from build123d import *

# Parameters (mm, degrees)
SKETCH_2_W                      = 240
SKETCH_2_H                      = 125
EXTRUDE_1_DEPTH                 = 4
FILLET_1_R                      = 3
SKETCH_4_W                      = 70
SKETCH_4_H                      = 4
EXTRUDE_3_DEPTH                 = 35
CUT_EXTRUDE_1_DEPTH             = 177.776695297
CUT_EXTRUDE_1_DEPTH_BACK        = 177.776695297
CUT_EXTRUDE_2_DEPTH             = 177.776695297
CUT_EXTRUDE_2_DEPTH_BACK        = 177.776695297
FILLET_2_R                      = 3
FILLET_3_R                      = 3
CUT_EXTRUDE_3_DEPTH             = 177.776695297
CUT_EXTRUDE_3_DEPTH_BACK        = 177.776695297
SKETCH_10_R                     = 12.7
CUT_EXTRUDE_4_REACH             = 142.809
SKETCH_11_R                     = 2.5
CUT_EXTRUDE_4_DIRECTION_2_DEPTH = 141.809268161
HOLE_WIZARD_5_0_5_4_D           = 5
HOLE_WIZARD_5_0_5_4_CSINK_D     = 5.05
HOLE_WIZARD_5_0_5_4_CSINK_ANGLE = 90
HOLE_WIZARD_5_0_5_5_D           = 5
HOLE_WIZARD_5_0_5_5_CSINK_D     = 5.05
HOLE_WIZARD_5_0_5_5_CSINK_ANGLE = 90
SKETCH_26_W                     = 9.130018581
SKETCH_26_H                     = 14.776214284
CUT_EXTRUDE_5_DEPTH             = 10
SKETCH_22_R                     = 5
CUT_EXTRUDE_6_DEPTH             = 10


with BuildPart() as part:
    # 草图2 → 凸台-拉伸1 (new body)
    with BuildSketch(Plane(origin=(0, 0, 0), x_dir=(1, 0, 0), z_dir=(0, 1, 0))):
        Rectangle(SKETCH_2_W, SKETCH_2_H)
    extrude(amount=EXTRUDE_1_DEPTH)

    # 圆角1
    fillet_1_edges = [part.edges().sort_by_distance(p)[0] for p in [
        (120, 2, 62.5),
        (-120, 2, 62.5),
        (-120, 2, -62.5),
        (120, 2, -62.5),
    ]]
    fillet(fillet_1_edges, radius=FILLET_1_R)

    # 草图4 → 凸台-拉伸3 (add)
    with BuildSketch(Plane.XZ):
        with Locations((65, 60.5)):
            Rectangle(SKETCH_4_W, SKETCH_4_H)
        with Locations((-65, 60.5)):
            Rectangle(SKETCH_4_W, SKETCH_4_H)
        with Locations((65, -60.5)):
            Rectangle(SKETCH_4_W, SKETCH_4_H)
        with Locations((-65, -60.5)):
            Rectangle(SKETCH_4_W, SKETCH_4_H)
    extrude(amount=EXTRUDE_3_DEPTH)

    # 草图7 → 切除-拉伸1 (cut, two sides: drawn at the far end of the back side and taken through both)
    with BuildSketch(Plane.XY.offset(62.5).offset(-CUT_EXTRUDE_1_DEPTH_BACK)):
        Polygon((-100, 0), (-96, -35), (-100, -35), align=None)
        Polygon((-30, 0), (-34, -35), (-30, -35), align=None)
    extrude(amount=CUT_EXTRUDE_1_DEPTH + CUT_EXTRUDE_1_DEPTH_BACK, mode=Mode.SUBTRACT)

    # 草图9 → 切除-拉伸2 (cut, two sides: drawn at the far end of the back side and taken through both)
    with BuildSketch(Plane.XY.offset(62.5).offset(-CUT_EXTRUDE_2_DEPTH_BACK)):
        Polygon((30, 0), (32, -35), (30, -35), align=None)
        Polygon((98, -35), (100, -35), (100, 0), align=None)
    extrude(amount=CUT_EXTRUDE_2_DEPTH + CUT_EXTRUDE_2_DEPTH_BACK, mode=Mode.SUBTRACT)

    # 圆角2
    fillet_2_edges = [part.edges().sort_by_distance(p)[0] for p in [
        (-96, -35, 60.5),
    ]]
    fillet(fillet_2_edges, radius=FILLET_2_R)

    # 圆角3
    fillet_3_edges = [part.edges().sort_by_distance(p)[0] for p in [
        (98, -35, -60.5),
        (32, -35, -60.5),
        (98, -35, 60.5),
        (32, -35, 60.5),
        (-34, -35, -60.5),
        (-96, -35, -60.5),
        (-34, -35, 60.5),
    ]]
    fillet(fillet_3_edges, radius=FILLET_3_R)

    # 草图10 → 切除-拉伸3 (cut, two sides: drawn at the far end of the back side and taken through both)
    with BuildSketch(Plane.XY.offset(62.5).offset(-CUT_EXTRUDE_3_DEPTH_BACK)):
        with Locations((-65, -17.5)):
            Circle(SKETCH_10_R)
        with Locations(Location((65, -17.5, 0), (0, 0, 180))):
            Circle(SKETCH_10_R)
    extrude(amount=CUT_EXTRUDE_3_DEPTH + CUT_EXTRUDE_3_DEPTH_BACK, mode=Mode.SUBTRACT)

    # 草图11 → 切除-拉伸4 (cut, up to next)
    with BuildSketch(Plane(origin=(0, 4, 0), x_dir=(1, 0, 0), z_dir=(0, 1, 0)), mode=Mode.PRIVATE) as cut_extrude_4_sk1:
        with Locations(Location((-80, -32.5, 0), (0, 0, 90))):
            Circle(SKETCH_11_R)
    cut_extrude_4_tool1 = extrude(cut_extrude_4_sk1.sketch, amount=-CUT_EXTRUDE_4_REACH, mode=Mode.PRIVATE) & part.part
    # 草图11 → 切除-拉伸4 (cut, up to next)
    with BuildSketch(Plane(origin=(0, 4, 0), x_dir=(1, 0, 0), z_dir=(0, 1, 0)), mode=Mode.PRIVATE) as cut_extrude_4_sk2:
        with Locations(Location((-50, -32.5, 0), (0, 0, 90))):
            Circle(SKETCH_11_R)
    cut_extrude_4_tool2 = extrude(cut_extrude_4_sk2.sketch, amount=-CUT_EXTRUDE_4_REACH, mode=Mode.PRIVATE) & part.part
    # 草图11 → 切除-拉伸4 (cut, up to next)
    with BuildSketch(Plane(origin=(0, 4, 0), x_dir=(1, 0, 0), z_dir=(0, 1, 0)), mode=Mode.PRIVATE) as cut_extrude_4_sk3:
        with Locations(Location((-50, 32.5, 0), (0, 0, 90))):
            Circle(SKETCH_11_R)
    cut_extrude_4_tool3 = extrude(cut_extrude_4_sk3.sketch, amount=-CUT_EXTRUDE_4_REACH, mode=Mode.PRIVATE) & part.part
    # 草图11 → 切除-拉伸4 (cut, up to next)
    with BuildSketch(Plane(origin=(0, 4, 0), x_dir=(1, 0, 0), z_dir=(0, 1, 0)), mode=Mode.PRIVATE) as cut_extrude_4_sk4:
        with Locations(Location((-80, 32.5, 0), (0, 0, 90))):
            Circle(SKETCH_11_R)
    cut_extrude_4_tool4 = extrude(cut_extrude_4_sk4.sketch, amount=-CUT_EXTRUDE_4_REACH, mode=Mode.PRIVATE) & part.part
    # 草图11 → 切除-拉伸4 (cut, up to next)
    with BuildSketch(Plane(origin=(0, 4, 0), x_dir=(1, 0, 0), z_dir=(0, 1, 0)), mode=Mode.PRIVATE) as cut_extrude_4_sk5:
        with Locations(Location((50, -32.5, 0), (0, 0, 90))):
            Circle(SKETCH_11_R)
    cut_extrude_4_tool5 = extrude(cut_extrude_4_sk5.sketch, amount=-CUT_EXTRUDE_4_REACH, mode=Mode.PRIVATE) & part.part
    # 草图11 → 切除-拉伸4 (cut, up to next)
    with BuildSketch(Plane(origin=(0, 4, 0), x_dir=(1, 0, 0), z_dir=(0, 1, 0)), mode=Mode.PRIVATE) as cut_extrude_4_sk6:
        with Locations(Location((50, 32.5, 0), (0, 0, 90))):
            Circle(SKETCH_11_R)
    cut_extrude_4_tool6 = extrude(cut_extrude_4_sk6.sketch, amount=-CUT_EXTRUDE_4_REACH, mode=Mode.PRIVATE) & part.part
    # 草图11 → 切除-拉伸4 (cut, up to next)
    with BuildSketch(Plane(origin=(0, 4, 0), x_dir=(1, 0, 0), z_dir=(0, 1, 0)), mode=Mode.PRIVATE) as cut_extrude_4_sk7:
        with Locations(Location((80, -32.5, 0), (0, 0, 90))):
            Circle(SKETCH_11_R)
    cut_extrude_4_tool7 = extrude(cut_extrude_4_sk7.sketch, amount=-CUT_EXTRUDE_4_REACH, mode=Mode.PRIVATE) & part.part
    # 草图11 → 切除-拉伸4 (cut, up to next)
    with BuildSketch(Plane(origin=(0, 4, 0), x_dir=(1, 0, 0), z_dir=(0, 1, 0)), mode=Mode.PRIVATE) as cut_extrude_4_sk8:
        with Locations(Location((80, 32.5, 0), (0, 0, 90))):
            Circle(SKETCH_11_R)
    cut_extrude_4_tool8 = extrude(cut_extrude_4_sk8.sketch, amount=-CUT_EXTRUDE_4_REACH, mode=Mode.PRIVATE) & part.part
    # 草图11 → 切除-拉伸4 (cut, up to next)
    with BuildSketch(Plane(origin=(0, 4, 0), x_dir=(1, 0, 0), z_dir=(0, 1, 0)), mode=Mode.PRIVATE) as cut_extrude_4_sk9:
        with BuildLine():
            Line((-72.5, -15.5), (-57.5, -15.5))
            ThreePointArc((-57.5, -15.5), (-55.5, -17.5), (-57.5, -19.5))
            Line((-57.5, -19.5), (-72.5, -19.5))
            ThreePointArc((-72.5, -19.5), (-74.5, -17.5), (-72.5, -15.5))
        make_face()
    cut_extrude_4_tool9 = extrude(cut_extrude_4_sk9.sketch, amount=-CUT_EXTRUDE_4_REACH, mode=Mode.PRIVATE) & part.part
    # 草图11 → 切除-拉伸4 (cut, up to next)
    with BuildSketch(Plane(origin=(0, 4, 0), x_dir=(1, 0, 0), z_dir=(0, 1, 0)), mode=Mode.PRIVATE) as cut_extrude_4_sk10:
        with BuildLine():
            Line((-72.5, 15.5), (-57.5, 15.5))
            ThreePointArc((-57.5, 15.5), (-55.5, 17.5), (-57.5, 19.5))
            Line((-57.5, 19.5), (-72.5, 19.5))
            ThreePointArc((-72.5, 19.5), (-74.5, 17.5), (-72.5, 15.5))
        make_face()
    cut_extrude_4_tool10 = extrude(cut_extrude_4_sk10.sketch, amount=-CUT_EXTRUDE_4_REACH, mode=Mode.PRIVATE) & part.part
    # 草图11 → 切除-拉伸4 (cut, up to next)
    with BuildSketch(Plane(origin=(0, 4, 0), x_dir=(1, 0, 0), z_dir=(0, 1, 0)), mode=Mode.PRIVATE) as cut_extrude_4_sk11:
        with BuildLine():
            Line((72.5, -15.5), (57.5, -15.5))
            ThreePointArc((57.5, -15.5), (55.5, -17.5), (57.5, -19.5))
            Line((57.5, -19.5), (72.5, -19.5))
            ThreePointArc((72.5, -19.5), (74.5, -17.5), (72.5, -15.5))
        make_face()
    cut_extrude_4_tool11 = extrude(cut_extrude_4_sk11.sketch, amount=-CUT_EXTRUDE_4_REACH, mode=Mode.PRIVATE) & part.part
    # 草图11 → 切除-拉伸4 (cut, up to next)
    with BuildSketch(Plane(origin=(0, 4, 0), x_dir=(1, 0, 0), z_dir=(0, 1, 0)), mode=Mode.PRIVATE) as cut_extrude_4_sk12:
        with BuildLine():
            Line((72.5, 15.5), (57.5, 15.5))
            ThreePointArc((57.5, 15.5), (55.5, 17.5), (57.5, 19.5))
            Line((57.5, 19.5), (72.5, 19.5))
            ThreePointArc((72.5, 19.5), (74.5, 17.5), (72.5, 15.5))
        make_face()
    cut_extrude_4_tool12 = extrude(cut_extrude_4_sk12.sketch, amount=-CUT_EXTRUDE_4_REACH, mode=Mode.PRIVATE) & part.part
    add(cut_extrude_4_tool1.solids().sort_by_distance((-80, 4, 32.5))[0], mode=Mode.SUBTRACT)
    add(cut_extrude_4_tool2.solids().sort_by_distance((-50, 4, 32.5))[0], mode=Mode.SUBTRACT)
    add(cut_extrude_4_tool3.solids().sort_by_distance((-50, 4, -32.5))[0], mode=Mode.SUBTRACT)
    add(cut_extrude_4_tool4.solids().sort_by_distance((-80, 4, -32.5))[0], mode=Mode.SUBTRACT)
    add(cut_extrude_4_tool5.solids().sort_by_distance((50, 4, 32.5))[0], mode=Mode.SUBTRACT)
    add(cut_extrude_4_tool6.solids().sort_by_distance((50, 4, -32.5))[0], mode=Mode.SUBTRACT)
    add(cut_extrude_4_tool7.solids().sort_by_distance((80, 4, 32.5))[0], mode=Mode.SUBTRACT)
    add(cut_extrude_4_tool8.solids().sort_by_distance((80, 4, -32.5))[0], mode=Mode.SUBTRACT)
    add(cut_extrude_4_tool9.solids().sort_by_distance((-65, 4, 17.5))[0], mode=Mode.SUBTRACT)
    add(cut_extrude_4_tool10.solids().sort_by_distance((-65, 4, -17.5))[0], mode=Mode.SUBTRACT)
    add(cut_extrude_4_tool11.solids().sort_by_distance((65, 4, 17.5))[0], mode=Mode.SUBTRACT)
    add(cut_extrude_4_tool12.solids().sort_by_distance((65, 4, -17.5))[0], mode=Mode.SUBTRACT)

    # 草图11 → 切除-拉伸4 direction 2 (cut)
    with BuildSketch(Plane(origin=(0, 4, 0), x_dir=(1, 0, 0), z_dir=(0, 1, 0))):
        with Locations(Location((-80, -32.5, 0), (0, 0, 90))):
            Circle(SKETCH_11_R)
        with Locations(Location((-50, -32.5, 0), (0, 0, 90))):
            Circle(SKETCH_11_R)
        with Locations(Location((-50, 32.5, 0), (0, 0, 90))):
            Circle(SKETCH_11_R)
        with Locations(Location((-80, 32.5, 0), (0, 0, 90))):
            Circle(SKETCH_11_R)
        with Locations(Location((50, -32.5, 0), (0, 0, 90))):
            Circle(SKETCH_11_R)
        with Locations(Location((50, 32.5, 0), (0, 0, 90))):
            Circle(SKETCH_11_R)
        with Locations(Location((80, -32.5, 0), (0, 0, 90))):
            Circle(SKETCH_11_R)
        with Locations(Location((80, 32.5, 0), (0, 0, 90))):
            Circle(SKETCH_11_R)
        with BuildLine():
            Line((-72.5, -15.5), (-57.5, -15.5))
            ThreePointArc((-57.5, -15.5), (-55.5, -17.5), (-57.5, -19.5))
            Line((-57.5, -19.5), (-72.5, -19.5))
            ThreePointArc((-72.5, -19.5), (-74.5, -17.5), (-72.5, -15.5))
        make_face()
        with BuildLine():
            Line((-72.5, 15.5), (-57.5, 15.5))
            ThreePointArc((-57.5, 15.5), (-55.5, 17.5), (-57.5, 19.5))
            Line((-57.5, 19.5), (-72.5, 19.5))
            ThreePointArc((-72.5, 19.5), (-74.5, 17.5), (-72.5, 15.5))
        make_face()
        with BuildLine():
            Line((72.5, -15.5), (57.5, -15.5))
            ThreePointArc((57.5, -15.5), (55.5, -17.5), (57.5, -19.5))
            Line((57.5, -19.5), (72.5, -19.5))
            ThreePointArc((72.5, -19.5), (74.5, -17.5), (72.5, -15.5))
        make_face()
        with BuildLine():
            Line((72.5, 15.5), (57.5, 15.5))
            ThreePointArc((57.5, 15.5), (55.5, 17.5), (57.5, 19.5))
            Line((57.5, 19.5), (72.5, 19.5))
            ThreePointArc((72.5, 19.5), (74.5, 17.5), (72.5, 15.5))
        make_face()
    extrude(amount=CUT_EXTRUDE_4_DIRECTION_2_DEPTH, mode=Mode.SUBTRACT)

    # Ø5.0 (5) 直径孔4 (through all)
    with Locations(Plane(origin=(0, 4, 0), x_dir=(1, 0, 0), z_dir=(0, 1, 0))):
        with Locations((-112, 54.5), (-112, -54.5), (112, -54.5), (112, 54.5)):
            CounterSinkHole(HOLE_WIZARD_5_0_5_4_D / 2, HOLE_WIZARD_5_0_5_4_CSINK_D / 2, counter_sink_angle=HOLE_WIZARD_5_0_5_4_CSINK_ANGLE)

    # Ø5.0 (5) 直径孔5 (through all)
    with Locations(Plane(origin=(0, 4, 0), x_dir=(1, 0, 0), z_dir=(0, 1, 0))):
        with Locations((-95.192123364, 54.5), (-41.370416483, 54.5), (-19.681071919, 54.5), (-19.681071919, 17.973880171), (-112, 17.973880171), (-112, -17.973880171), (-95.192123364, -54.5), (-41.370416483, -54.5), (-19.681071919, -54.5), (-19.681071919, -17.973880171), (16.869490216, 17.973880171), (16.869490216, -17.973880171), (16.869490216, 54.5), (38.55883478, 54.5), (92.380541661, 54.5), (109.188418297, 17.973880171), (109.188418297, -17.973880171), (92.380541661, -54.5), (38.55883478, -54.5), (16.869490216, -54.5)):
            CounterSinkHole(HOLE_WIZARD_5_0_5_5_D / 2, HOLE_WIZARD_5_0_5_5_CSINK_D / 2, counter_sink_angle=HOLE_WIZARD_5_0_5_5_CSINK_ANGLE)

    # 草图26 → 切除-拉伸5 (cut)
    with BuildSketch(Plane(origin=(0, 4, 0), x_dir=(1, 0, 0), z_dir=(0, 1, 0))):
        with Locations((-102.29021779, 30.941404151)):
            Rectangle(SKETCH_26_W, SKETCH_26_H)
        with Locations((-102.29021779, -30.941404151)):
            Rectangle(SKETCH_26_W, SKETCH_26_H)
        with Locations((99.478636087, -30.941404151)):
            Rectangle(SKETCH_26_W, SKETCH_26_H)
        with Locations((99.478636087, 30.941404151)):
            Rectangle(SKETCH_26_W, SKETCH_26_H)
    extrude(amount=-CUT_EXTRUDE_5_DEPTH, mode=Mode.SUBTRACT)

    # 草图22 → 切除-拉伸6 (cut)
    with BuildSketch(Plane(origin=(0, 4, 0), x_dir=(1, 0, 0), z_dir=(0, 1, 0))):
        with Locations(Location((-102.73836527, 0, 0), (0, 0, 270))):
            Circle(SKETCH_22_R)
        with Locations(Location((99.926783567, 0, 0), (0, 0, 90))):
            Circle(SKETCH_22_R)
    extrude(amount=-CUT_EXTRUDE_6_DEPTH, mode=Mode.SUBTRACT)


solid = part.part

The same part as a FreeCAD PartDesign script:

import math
import FreeCAD as App
import Part
import Sketcher

V = App.Vector


def edges_at(feature, points):
    """Names of the edges that pass closest to the given points."""
    edges = feature.Shape.Edges
    near = lambda p: min(range(len(edges)), key=lambda i: edges[i].distToShape(Part.Vertex(*p))[0])
    return sorted({f"Edge{near(p) + 1}" for p in points})

doc = App.newDocument("Part")
body = doc.addObject("PartDesign::Body", "Body")

sketch1 = body.newObject("Sketcher::SketchObject", "Sketch")
sketch1.AttachmentSupport = (doc.getObject("XZ_Plane"), [""])
sketch1.MapMode = "FlatFace"
sketch1.addGeometry([
    Part.LineSegment(V(-120, -62, 0), V(-120, 62, 0)),
    Part.LineSegment(V(-120, 62, 0), V(120, 62, 0)),
    Part.LineSegment(V(120, 62, 0), V(120, -62, 0)),
    Part.LineSegment(V(120, -62, 0), V(-120, -62, 0)),
], False)
sketch1.addConstraint([
    Sketcher.Constraint("Coincident", 0, 2, 1, 1),
    Sketcher.Constraint("Coincident", 1, 2, 2, 1),
    Sketcher.Constraint("Coincident", 2, 2, 3, 1),
    Sketcher.Constraint("Coincident", 3, 2, 0, 1),
    Sketcher.Constraint("Vertical", 0),
    Sketcher.Constraint("Horizontal", 1),
    Sketcher.Constraint("Vertical", 2),
    Sketcher.Constraint("Horizontal", 3),
    Sketcher.Constraint("Symmetric", 0, 2, 2, 2, -1, 1),
    Sketcher.Constraint("DistanceX", 1, 1, 1, 2, 240.0),
    Sketcher.Constraint("DistanceY", 0, 1, 0, 2, 125.0),
])
pad1 = body.newObject("PartDesign::Pad", "Pad")
pad1.Profile = sketch1
pad1.Length = 4
pad1.Reversed = True
doc.recompute()

fillet = body.newObject("PartDesign::Fillet", "Fillet")
fillet.Base = (pad1, edges_at(pad1, [
    (120, 2, 62.5),
    (-120, 2, 62.5),
    (-120, 2, -62.5),
    (120, 2, -62.5),
]))
fillet.Radius = 3

sketch2 = body.newObject("Sketcher::SketchObject", "Sketch001")
sketch2.AttachmentSupport = (doc.getObject("XZ_Plane"), [""])
sketch2.MapMode = "FlatFace"
sketch2.addGeometry([
    Part.LineSegment(V(30, 62.5, 0), V(30, 58.5, 0)),
    Part.LineSegment(V(30, 58.5, 0), V(100, 58.5, 0)),
    Part.LineSegment(V(100, 58.5, 0), V(100, 62.5, 0)),
    Part.LineSegment(V(100, 62.5, 0), V(30, 62.5, 0)),
    Part.LineSegment(V(-100, 62.5, 0), V(-100, 58.5, 0)),
    Part.LineSegment(V(-100, 58.5, 0), V(-30, 58.5, 0)),
    Part.LineSegment(V(-30, 58.5, 0), V(-30, 62.5, 0)),
    Part.LineSegment(V(-30, 62.5, 0), V(-100, 62.5, 0)),
    Part.LineSegment(V(30, -58.5, 0), V(30, -62.5, 0)),
    Part.LineSegment(V(30, -62.5, 0), V(100, -62.5, 0)),
    Part.LineSegment(V(100, -62.5, 0), V(100, -58.5, 0)),
    Part.LineSegment(V(100, -58.5, 0), V(30, -58.5, 0)),
    Part.LineSegment(V(-100, -58.5, 0), V(-100, -62.5, 0)),
    Part.LineSegment(V(-100, -62.5, 0), V(-30, -62.5, 0)),
    Part.LineSegment(V(-30, -62.5, 0), V(-30, -58.5, 0)),
    Part.LineSegment(V(-30, -58.5, 0), V(-100, -58.5, 0)),
], False)
sketch2.addConstraint([
    Sketcher.Constraint("Coincident", 0, 2, 1, 1),
    Sketcher.Constraint("Coincident", 1, 2, 2, 1),
    Sketcher.Constraint("Coincident", 2, 2, 3, 1),
    Sketcher.Constraint("Coincident", 3, 2, 0, 1),
    Sketcher.Constraint("Coincident", 4, 2, 5, 1),
    Sketcher.Constraint("Coincident", 5, 2, 6, 1),
    Sketcher.Constraint("Coincident", 6, 2, 7, 1),
    Sketcher.Constraint("Coincident", 7, 2, 4, 1),
    Sketcher.Constraint("Coincident", 8, 2, 9, 1),
    Sketcher.Constraint("Coincident", 9, 2, 10, 1),
    Sketcher.Constraint("Coincident", 10, 2, 11, 1),
    Sketcher.Constraint("Coincident", 11, 2, 8, 1),
    Sketcher.Constraint("Coincident", 12, 2, 13, 1),
    Sketcher.Constraint("Coincident", 13, 2, 14, 1),
    Sketcher.Constraint("Coincident", 14, 2, 15, 1),
    Sketcher.Constraint("Coincident", 15, 2, 12, 1),
    Sketcher.Constraint("Vertical", 0),
    Sketcher.Constraint("Horizontal", 1),
    Sketcher.Constraint("Vertical", 2),
    Sketcher.Constraint("Horizontal", 3),
    Sketcher.Constraint("Vertical", 4),
    Sketcher.Constraint("Horizontal", 5),
    Sketcher.Constraint("Vertical", 6),
    Sketcher.Constraint("Horizontal", 7),
    Sketcher.Constraint("Vertical", 8),
    Sketcher.Constraint("Horizontal", 9),
    Sketcher.Constraint("Vertical", 10),
    Sketcher.Constraint("Horizontal", 11),
    Sketcher.Constraint("Vertical", 12),
    Sketcher.Constraint("Horizontal", 13),
    Sketcher.Constraint("Vertical", 14),
    Sketcher.Constraint("Horizontal", 15),
    Sketcher.Constraint("Symmetric", 6, 2, 8, 2, -1, 1),
    Sketcher.Constraint("Symmetric", 4, 2, 10, 2, -1, 1),
    Sketcher.Constraint("Symmetric", 2, 2, 12, 2, -1, 1),
    Sketcher.Constraint("Symmetric", 0, 2, 14, 2, -1, 1),
    Sketcher.Constraint("Symmetric", 1, 2, 4, 2, -2),
    Sketcher.Constraint("Symmetric", 3, 2, 6, 2, -2),
    Sketcher.Constraint("DistanceX", 1, 1, 1, 2, 70.0),
    Sketcher.Constraint("DistanceY", 0, 2, 0, 1, 4.0),
    Sketcher.Constraint("DistanceX", -1, 1, 0, 2, 30.0),
    Sketcher.Constraint("DistanceY", 8, 2, 0, 2, 121.0),
])
pad2 = body.newObject("PartDesign::Pad", "Pad001")
pad2.Profile = sketch2
pad2.Length = 35

sketch3 = body.newObject("Sketcher::SketchObject", "Sketch002")
sketch3.AttachmentSupport = (doc.getObject("XY_Plane"), [""])
sketch3.MapMode = "FlatFace"
sketch3.AttachmentOffset = App.Placement(V(0, 0, 62.5), App.Rotation())
sketch3.addGeometry([
    Part.LineSegment(V(-96, -35, 0), V(-100, 0, 0)),
    Part.LineSegment(V(-100, 0, 0), V(-100, -35, 0)),
    Part.LineSegment(V(-100, -35, 0), V(-96, -35, 0)),
    Part.LineSegment(V(-30, 0, 0), V(-34, -35, 0)),
    Part.LineSegment(V(-34, -35, 0), V(-30, -35, 0)),
    Part.LineSegment(V(-30, -35, 0), V(-30, 0, 0)),
], False)
sketch3.addConstraint([
    Sketcher.Constraint("Coincident", 0, 2, 1, 1),
    Sketcher.Constraint("Coincident", 1, 2, 2, 1),
    Sketcher.Constraint("Coincident", 2, 2, 0, 1),
    Sketcher.Constraint("Coincident", 3, 2, 4, 1),
    Sketcher.Constraint("Coincident", 4, 2, 5, 1),
    Sketcher.Constraint("Coincident", 5, 2, 3, 1),
    Sketcher.Constraint("Vertical", 1),
    Sketcher.Constraint("Horizontal", 2),
    Sketcher.Constraint("Horizontal", 4),
    Sketcher.Constraint("Vertical", 5),
    Sketcher.Constraint("PointOnObject", 0, 2, -1),
    Sketcher.Constraint("PointOnObject", 5, 2, -1),
    Sketcher.Constraint("Horizontal", 2, 2, 3, 2),
    Sketcher.Constraint("Equal", 2, 4),
    Sketcher.Constraint("DistanceX", 2, 1, 2, 2, 4.0),
    Sketcher.Constraint("DistanceY", 1, 2, 1, 1, 35.0),
    Sketcher.Constraint("DistanceX", 0, 2, -1, 1, 100.0),
    Sketcher.Constraint("DistanceX", 3, 2, -1, 1, 34.0),
])
pocket1 = body.newObject("PartDesign::Pocket", "Pocket")
pocket1.Profile = sketch3
pocket1.Type = "ThroughAll"
pocket1.Midplane = True

sketch4 = body.newObject("Sketcher::SketchObject", "Sketch003")
sketch4.AttachmentSupport = (doc.getObject("XY_Plane"), [""])
sketch4.MapMode = "FlatFace"
sketch4.AttachmentOffset = App.Placement(V(0, 0, 62.5), App.Rotation())
sketch4.addGeometry([
    Part.LineSegment(V(32, -35, 0), V(30, 0, 0)),
    Part.LineSegment(V(30, 0, 0), V(30, -35, 0)),
    Part.LineSegment(V(30, -35, 0), V(32, -35, 0)),
    Part.LineSegment(V(98, -35, 0), V(100, -35, 0)),
    Part.LineSegment(V(100, -35, 0), V(100, 0, 0)),
    Part.LineSegment(V(100, 0, 0), V(98, -35, 0)),
], False)
sketch4.addConstraint([
    Sketcher.Constraint("Coincident", 0, 2, 1, 1),
    Sketcher.Constraint("Coincident", 1, 2, 2, 1),
    Sketcher.Constraint("Coincident", 2, 2, 0, 1),
    Sketcher.Constraint("Coincident", 3, 2, 4, 1),
    Sketcher.Constraint("Coincident", 4, 2, 5, 1),
    Sketcher.Constraint("Coincident", 5, 2, 3, 1),
    Sketcher.Constraint("Vertical", 1),
    Sketcher.Constraint("Horizontal", 2),
    Sketcher.Constraint("Horizontal", 3),
    Sketcher.Constraint("Vertical", 4),
    Sketcher.Constraint("PointOnObject", 0, 2, -1),
    Sketcher.Constraint("PointOnObject", 4, 2, -1),
    Sketcher.Constraint("Horizontal", 2, 2, 3, 2),
    Sketcher.Constraint("Equal", 2, 3),
    Sketcher.Constraint("DistanceX", 2, 1, 2, 2, 2.0),
    Sketcher.Constraint("DistanceY", 1, 2, 1, 1, 35.0),
    Sketcher.Constraint("DistanceX", -1, 1, 0, 2, 30.0),
    Sketcher.Constraint("DistanceX", -1, 1, 3, 2, 100.0),
])
pocket2 = body.newObject("PartDesign::Pocket", "Pocket001")
pocket2.Profile = sketch4
pocket2.Type = "ThroughAll"
pocket2.Midplane = True
doc.recompute()

fillet2 = body.newObject("PartDesign::Fillet", "Fillet001")
fillet2.Base = (pocket2, edges_at(pocket2, [(-96, -35, 60.5)]))
fillet2.Radius = 3
doc.recompute()

fillet3 = body.newObject("PartDesign::Fillet", "Fillet002")
fillet3.Base = (fillet2, edges_at(fillet2, [
    (98, -35, -60.5),
    (32, -35, -60.5),
    (98, -35, 60.5),
    (32, -35, 60.5),
    (-34, -35, -60.5),
    (-96, -35, -60.5),
    (-34, -35, 60.5),
]))
fillet3.Radius = 3

sketch5 = body.newObject("Sketcher::SketchObject", "Sketch004")
sketch5.AttachmentSupport = (doc.getObject("XY_Plane"), [""])
sketch5.MapMode = "FlatFace"
sketch5.AttachmentOffset = App.Placement(V(0, 0, 62.5), App.Rotation())
sketch5.addGeometry([
    Part.Circle(V(-65, -18, 0), V(0, 0, 1), 13),
    Part.Circle(V(65, -18, 0), V(0, 0, 1), 13),
], False)
sketch5.addConstraint([
    Sketcher.Constraint("Equal", 0, 1),
    Sketcher.Constraint("Symmetric", 0, 3, 1, 3, -2),
    Sketcher.Constraint("Diameter", 0, 25.4),
    Sketcher.Constraint("DistanceX", 0, 3, -1, 1, 65.0),
    Sketcher.Constraint("DistanceY", 0, 3, -1, 1, 17.5),
])
pocket3 = body.newObject("PartDesign::Pocket", "Pocket002")
pocket3.Profile = sketch5
pocket3.Type = "ThroughAll"
pocket3.Midplane = True

sketch6 = body.newObject("Sketcher::SketchObject", "Sketch005")
sketch6.AttachmentSupport = (doc.getObject("XZ_Plane"), [""])
sketch6.MapMode = "FlatFace"
sketch6.AttachmentOffset = App.Placement(V(0, 0, -4), App.Rotation())
sketch6.addGeometry(Part.Circle(V(-80, 32.5, 0), V(0, 0, 1), 2.5), False)
sketch6.addConstraint([
    Sketcher.Constraint("Diameter", 0, 5.0),
    Sketcher.Constraint("DistanceX", 0, 3, -1, 1, 80.0),
    Sketcher.Constraint("DistanceY", -1, 1, 0, 3, 32.5),
])
pocket4 = body.newObject("PartDesign::Pocket", "Pocket003")
pocket4.Profile = sketch6
pocket4.Type = "UpToFirst"
pocket4.Reversed = True

sketch7 = body.newObject("Sketcher::SketchObject", "Sketch006")
sketch7.AttachmentSupport = (doc.getObject("XZ_Plane"), [""])
sketch7.MapMode = "FlatFace"
sketch7.AttachmentOffset = App.Placement(V(0, 0, -4), App.Rotation())
sketch7.addGeometry(Part.Circle(V(-50, 32.5, 0), V(0, 0, 1), 2.5), False)
sketch7.addConstraint([
    Sketcher.Constraint("Diameter", 0, 5.0),
    Sketcher.Constraint("DistanceX", 0, 3, -1, 1, 50.0),
    Sketcher.Constraint("DistanceY", -1, 1, 0, 3, 32.5),
])
pocket5 = body.newObject("PartDesign::Pocket", "Pocket004")
pocket5.Profile = sketch7
pocket5.Type = "UpToFirst"
pocket5.Reversed = True

sketch8 = body.newObject("Sketcher::SketchObject", "Sketch007")
sketch8.AttachmentSupport = (doc.getObject("XZ_Plane"), [""])
sketch8.MapMode = "FlatFace"
sketch8.AttachmentOffset = App.Placement(V(0, 0, -4), App.Rotation())
sketch8.addGeometry(Part.Circle(V(-50, -32.5, 0), V(0, 0, 1), 2.5), False)
sketch8.addConstraint([
    Sketcher.Constraint("Diameter", 0, 5.0),
    Sketcher.Constraint("DistanceX", 0, 3, -1, 1, 50.0),
    Sketcher.Constraint("DistanceY", 0, 3, -1, 1, 32.5),
])
pocket6 = body.newObject("PartDesign::Pocket", "Pocket005")
pocket6.Profile = sketch8
pocket6.Type = "UpToFirst"
pocket6.Reversed = True

sketch9 = body.newObject("Sketcher::SketchObject", "Sketch008")
sketch9.AttachmentSupport = (doc.getObject("XZ_Plane"), [""])
sketch9.MapMode = "FlatFace"
sketch9.AttachmentOffset = App.Placement(V(0, 0, -4), App.Rotation())
sketch9.addGeometry(Part.Circle(V(-80, -32.5, 0), V(0, 0, 1), 2.5), False)
sketch9.addConstraint([
    Sketcher.Constraint("Diameter", 0, 5.0),
    Sketcher.Constraint("DistanceX", 0, 3, -1, 1, 80.0),
    Sketcher.Constraint("DistanceY", 0, 3, -1, 1, 32.5),
])
pocket7 = body.newObject("PartDesign::Pocket", "Pocket006")
pocket7.Profile = sketch9
pocket7.Type = "UpToFirst"
pocket7.Reversed = True

sketch10 = body.newObject("Sketcher::SketchObject", "Sketch009")
sketch10.AttachmentSupport = (doc.getObject("XZ_Plane"), [""])
sketch10.MapMode = "FlatFace"
sketch10.AttachmentOffset = App.Placement(V(0, 0, -4), App.Rotation())
sketch10.addGeometry(Part.Circle(V(50, 32.5, 0), V(0, 0, 1), 2.5), False)
sketch10.addConstraint([
    Sketcher.Constraint("Diameter", 0, 5.0),
    Sketcher.Constraint("DistanceX", -1, 1, 0, 3, 50.0),
    Sketcher.Constraint("DistanceY", -1, 1, 0, 3, 32.5),
])
pocket8 = body.newObject("PartDesign::Pocket", "Pocket007")
pocket8.Profile = sketch10
pocket8.Type = "UpToFirst"
pocket8.Reversed = True

sketch11 = body.newObject("Sketcher::SketchObject", "Sketch010")
sketch11.AttachmentSupport = (doc.getObject("XZ_Plane"), [""])
sketch11.MapMode = "FlatFace"
sketch11.AttachmentOffset = App.Placement(V(0, 0, -4), App.Rotation())
sketch11.addGeometry(Part.Circle(V(50, -32.5, 0), V(0, 0, 1), 2.5), False)
sketch11.addConstraint([
    Sketcher.Constraint("Diameter", 0, 5.0),
    Sketcher.Constraint("DistanceX", -1, 1, 0, 3, 50.0),
    Sketcher.Constraint("DistanceY", 0, 3, -1, 1, 32.5),
])
pocket9 = body.newObject("PartDesign::Pocket", "Pocket008")
pocket9.Profile = sketch11
pocket9.Type = "UpToFirst"
pocket9.Reversed = True

sketch12 = body.newObject("Sketcher::SketchObject", "Sketch011")
sketch12.AttachmentSupport = (doc.getObject("XZ_Plane"), [""])
sketch12.MapMode = "FlatFace"
sketch12.AttachmentOffset = App.Placement(V(0, 0, -4), App.Rotation())
sketch12.addGeometry(Part.Circle(V(80, 32.5, 0), V(0, 0, 1), 2.5), False)
sketch12.addConstraint([
    Sketcher.Constraint("Diameter", 0, 5.0),
    Sketcher.Constraint("DistanceX", -1, 1, 0, 3, 80.0),
    Sketcher.Constraint("DistanceY", -1, 1, 0, 3, 32.5),
])
pocket10 = body.newObject("PartDesign::Pocket", "Pocket009")
pocket10.Profile = sketch12
pocket10.Type = "UpToFirst"
pocket10.Reversed = True

sketch13 = body.newObject("Sketcher::SketchObject", "Sketch012")
sketch13.AttachmentSupport = (doc.getObject("XZ_Plane"), [""])
sketch13.MapMode = "FlatFace"
sketch13.AttachmentOffset = App.Placement(V(0, 0, -4), App.Rotation())
sketch13.addGeometry(Part.Circle(V(80, -32.5, 0), V(0, 0, 1), 2.5), False)
sketch13.addConstraint([
    Sketcher.Constraint("Diameter", 0, 5.0),
    Sketcher.Constraint("DistanceX", -1, 1, 0, 3, 80.0),
    Sketcher.Constraint("DistanceY", 0, 3, -1, 1, 32.5),
])
pocket11 = body.newObject("PartDesign::Pocket", "Pocket010")
pocket11.Profile = sketch13
pocket11.Type = "UpToFirst"
pocket11.Reversed = True

sketch14 = body.newObject("Sketcher::SketchObject", "Sketch013")
sketch14.AttachmentSupport = (doc.getObject("XZ_Plane"), [""])
sketch14.MapMode = "FlatFace"
sketch14.AttachmentOffset = App.Placement(V(0, 0, -4), App.Rotation())
sketch14.addGeometry([
    Part.LineSegment(V(-57.5, 15.5, 0), V(-72.5, 15.5, 0)),
    Part.ArcOfCircle(Part.Circle(V(-72.5, 17.5, 0), V(0, 0, 1), 2), math.radians(90), math.radians(270)),
    Part.LineSegment(V(-72.5, 19.5, 0), V(-57.5, 19.5, 0)),
    Part.ArcOfCircle(Part.Circle(V(-57.5, 17.5, 0), V(0, 0, 1), 2), math.radians(-90), math.radians(90)),
], False)
sketch14.addConstraint([
    Sketcher.Constraint("Tangent", 0, 2, 1, 2),
    Sketcher.Constraint("Tangent", 1, 1, 2, 1),
    Sketcher.Constraint("Tangent", 2, 2, 3, 2),
    Sketcher.Constraint("Tangent", 3, 1, 0, 1),
    Sketcher.Constraint("Horizontal", 0),
    Sketcher.Constraint("Horizontal", 2),
    Sketcher.Constraint("Radius", 1, 2.0),
    Sketcher.Constraint("DistanceX", 0, 2, 0, 1, 15.0),
    Sketcher.Constraint("DistanceX", 1, 3, -1, 1, 72.5),
    Sketcher.Constraint("DistanceY", -1, 1, 1, 3, 17.5),
])
pocket12 = body.newObject("PartDesign::Pocket", "Pocket011")
pocket12.Profile = sketch14
pocket12.Type = "UpToFirst"
pocket12.Reversed = True

sketch15 = body.newObject("Sketcher::SketchObject", "Sketch014")
sketch15.AttachmentSupport = (doc.getObject("XZ_Plane"), [""])
sketch15.MapMode = "FlatFace"
sketch15.AttachmentOffset = App.Placement(V(0, 0, -4), App.Rotation())
sketch15.addGeometry([
    Part.LineSegment(V(-72.5, -15.5, 0), V(-57.5, -15.5, 0)),
    Part.ArcOfCircle(Part.Circle(V(-57.5, -17.5, 0), V(0, 0, 1), 2), math.radians(-90), math.radians(90)),
    Part.LineSegment(V(-57.5, -19.5, 0), V(-72.5, -19.5, 0)),
    Part.ArcOfCircle(Part.Circle(V(-72.5, -17.5, 0), V(0, 0, 1), 2), math.radians(90), math.radians(270)),
], False)
sketch15.addConstraint([
    Sketcher.Constraint("Tangent", 0, 2, 1, 2),
    Sketcher.Constraint("Tangent", 1, 1, 2, 1),
    Sketcher.Constraint("Tangent", 2, 2, 3, 2),
    Sketcher.Constraint("Tangent", 3, 1, 0, 1),
    Sketcher.Constraint("Horizontal", 0),
    Sketcher.Constraint("Horizontal", 2),
    Sketcher.Constraint("Radius", 1, 2.0),
    Sketcher.Constraint("DistanceX", 0, 1, 0, 2, 15.0),
    Sketcher.Constraint("DistanceX", 1, 3, -1, 1, 57.5),
    Sketcher.Constraint("DistanceY", 1, 3, -1, 1, 17.5),
])
pocket13 = body.newObject("PartDesign::Pocket", "Pocket012")
pocket13.Profile = sketch15
pocket13.Type = "UpToFirst"
pocket13.Reversed = True

sketch16 = body.newObject("Sketcher::SketchObject", "Sketch015")
sketch16.AttachmentSupport = (doc.getObject("XZ_Plane"), [""])
sketch16.MapMode = "FlatFace"
sketch16.AttachmentOffset = App.Placement(V(0, 0, -4), App.Rotation())
sketch16.addGeometry([
    Part.LineSegment(V(72.5, 15.5, 0), V(57.5, 15.5, 0)),
    Part.ArcOfCircle(Part.Circle(V(57.5, 17.5, 0), V(0, 0, 1), 2), math.radians(90), math.radians(270)),
    Part.LineSegment(V(57.5, 19.5, 0), V(72.5, 19.5, 0)),
    Part.ArcOfCircle(Part.Circle(V(72.5, 17.5, 0), V(0, 0, 1), 2), math.radians(-90), math.radians(90)),
], False)
sketch16.addConstraint([
    Sketcher.Constraint("Tangent", 0, 2, 1, 2),
    Sketcher.Constraint("Tangent", 1, 1, 2, 1),
    Sketcher.Constraint("Tangent", 2, 2, 3, 2),
    Sketcher.Constraint("Tangent", 3, 1, 0, 1),
    Sketcher.Constraint("Horizontal", 0),
    Sketcher.Constraint("Horizontal", 2),
    Sketcher.Constraint("Radius", 1, 2.0),
    Sketcher.Constraint("DistanceX", 0, 2, 0, 1, 15.0),
    Sketcher.Constraint("DistanceX", -1, 1, 1, 3, 57.5),
    Sketcher.Constraint("DistanceY", -1, 1, 1, 3, 17.5),
])
pocket14 = body.newObject("PartDesign::Pocket", "Pocket013")
pocket14.Profile = sketch16
pocket14.Type = "UpToFirst"
pocket14.Reversed = True

sketch17 = body.newObject("Sketcher::SketchObject", "Sketch016")
sketch17.AttachmentSupport = (doc.getObject("XZ_Plane"), [""])
sketch17.MapMode = "FlatFace"
sketch17.AttachmentOffset = App.Placement(V(0, 0, -4), App.Rotation())
sketch17.addGeometry([
    Part.LineSegment(V(57.5, -15.5, 0), V(72.5, -15.5, 0)),
    Part.ArcOfCircle(Part.Circle(V(72.5, -17.5, 0), V(0, 0, 1), 2), math.radians(-90), math.radians(90)),
    Part.LineSegment(V(72.5, -19.5, 0), V(57.5, -19.5, 0)),
    Part.ArcOfCircle(Part.Circle(V(57.5, -17.5, 0), V(0, 0, 1), 2), math.radians(90), math.radians(270)),
], False)
sketch17.addConstraint([
    Sketcher.Constraint("Tangent", 0, 2, 1, 2),
    Sketcher.Constraint("Tangent", 1, 1, 2, 1),
    Sketcher.Constraint("Tangent", 2, 2, 3, 2),
    Sketcher.Constraint("Tangent", 3, 1, 0, 1),
    Sketcher.Constraint("Horizontal", 0),
    Sketcher.Constraint("Horizontal", 2),
    Sketcher.Constraint("Radius", 1, 2.0),
    Sketcher.Constraint("DistanceX", 0, 1, 0, 2, 15.0),
    Sketcher.Constraint("DistanceX", -1, 1, 1, 3, 72.5),
    Sketcher.Constraint("DistanceY", 1, 3, -1, 1, 17.5),
])
pocket15 = body.newObject("PartDesign::Pocket", "Pocket014")
pocket15.Profile = sketch17
pocket15.Type = "UpToFirst"
pocket15.Reversed = True

sketch18 = body.newObject("Sketcher::SketchObject", "Sketch017")
sketch18.AttachmentSupport = (doc.getObject("XZ_Plane"), [""])
sketch18.MapMode = "FlatFace"
sketch18.AttachmentOffset = App.Placement(V(0, 0, -4), App.Rotation())
sketch18.addGeometry([
    Part.Circle(V(-80, 32.5, 0), V(0, 0, 1), 2.5),
    Part.Circle(V(-50, 32.5, 0), V(0, 0, 1), 2.5),
    Part.Circle(V(-50, -32.5, 0), V(0, 0, 1), 2.5),
    Part.Circle(V(-80, -32.5, 0), V(0, 0, 1), 2.5),
    Part.Circle(V(50, 32.5, 0), V(0, 0, 1), 2.5),
    Part.Circle(V(50, -32.5, 0), V(0, 0, 1), 2.5),
    Part.Circle(V(80, 32.5, 0), V(0, 0, 1), 2.5),
    Part.Circle(V(80, -32.5, 0), V(0, 0, 1), 2.5),
    Part.LineSegment(V(-57.5, 15.5, 0), V(-72.5, 15.5, 0)),
    Part.ArcOfCircle(Part.Circle(V(-72.5, 17.5, 0), V(0, 0, 1), 2), math.radians(90), math.radians(270)),
    Part.LineSegment(V(-72.5, 19.5, 0), V(-57.5, 19.5, 0)),
    Part.ArcOfCircle(Part.Circle(V(-57.5, 17.5, 0), V(0, 0, 1), 2), math.radians(-90), math.radians(90)),
    Part.LineSegment(V(-72.5, -15.5, 0), V(-57.5, -15.5, 0)),
    Part.ArcOfCircle(Part.Circle(V(-57.5, -17.5, 0), V(0, 0, 1), 2), math.radians(-90), math.radians(90)),
    Part.LineSegment(V(-57.5, -19.5, 0), V(-72.5, -19.5, 0)),
    Part.ArcOfCircle(Part.Circle(V(-72.5, -17.5, 0), V(0, 0, 1), 2), math.radians(90), math.radians(270)),
    Part.LineSegment(V(72.5, 15.5, 0), V(57.5, 15.5, 0)),
    Part.ArcOfCircle(Part.Circle(V(57.5, 17.5, 0), V(0, 0, 1), 2), math.radians(90), math.radians(270)),
    Part.LineSegment(V(57.5, 19.5, 0), V(72.5, 19.5, 0)),
    Part.ArcOfCircle(Part.Circle(V(72.5, 17.5, 0), V(0, 0, 1), 2), math.radians(-90), math.radians(90)),
    Part.LineSegment(V(57.5, -15.5, 0), V(72.5, -15.5, 0)),
    Part.ArcOfCircle(Part.Circle(V(72.5, -17.5, 0), V(0, 0, 1), 2), math.radians(-90), math.radians(90)),
    Part.LineSegment(V(72.5, -19.5, 0), V(57.5, -19.5, 0)),
    Part.ArcOfCircle(Part.Circle(V(57.5, -17.5, 0), V(0, 0, 1), 2), math.radians(90), math.radians(270)),
], False)
sketch18.addConstraint([
    Sketcher.Constraint("Tangent", 8, 2, 9, 2),
    Sketcher.Constraint("Tangent", 9, 1, 10, 1),
    Sketcher.Constraint("Tangent", 10, 2, 11, 2),
    Sketcher.Constraint("Tangent", 11, 1, 8, 1),
    Sketcher.Constraint("Tangent", 12, 2, 13, 2),
    Sketcher.Constraint("Tangent", 13, 1, 14, 1),
    Sketcher.Constraint("Tangent", 14, 2, 15, 2),
    Sketcher.Constraint("Tangent", 15, 1, 12, 1),
    Sketcher.Constraint("Tangent", 16, 2, 17, 2),
    Sketcher.Constraint("Tangent", 17, 1, 18, 1),
    Sketcher.Constraint("Tangent", 18, 2, 19, 2),
    Sketcher.Constraint("Tangent", 19, 1, 16, 1),
    Sketcher.Constraint("Tangent", 20, 2, 21, 2),
    Sketcher.Constraint("Tangent", 21, 1, 22, 1),
    Sketcher.Constraint("Tangent", 22, 2, 23, 2),
    Sketcher.Constraint("Tangent", 23, 1, 20, 1),
    Sketcher.Constraint("Horizontal", 8),
    Sketcher.Constraint("Horizontal", 10),
    Sketcher.Constraint("Horizontal", 12),
    Sketcher.Constraint("Horizontal", 14),
    Sketcher.Constraint("Horizontal", 16),
    Sketcher.Constraint("Horizontal", 18),
    Sketcher.Constraint("Horizontal", 20),
    Sketcher.Constraint("Horizontal", 22),
    Sketcher.Constraint("Equal", 0, 1),
    Sketcher.Constraint("Equal", 1, 2),
    Sketcher.Constraint("Equal", 2, 3),
    Sketcher.Constraint("Equal", 3, 4),
    Sketcher.Constraint("Equal", 4, 5),
    Sketcher.Constraint("Equal", 5, 6),
    Sketcher.Constraint("Equal", 6, 7),
    Sketcher.Constraint("Equal", 11, 13),
    Sketcher.Constraint("Equal", 15, 17),
    Sketcher.Constraint("Equal", 19, 21),
    Sketcher.Constraint("Symmetric", 2, 3, 4, 3, -1, 1),
    Sketcher.Constraint("Symmetric", 1, 3, 5, 3, -1, 1),
    Sketcher.Constraint("Symmetric", 3, 3, 6, 3, -1, 1),
    Sketcher.Constraint("Symmetric", 0, 3, 7, 3, -1, 1),
    Sketcher.Constraint("Symmetric", 13, 3, 17, 3, -1, 1),
    Sketcher.Constraint("Symmetric", 9, 3, 21, 3, -1, 1),
    Sketcher.Constraint("Symmetric", 1, 3, 4, 3, -2),
    Sketcher.Constraint("Symmetric", 0, 3, 6, 3, -2),
    Sketcher.Constraint("Symmetric", 11, 3, 17, 3, -2),
    Sketcher.Constraint("Horizontal", 0, 3, 1, 3),
    Sketcher.Constraint("Vertical", 9, 3, 15, 3),
    Sketcher.Constraint("Vertical", 19, 3, 21, 3),
    Sketcher.Constraint("Vertical", 17, 3, 23, 3),
    Sketcher.Constraint("Diameter", 0, 5.0),
    Sketcher.Constraint("Radius", 9, 2.0),
    Sketcher.Constraint("DistanceX", 8, 2, 8, 1, 15.0),
    Sketcher.Constraint("DistanceX", 0, 3, -1, 1, 80.0),
    Sketcher.Constraint("DistanceX", 1, 3, -1, 1, 50.0),
    Sketcher.Constraint("DistanceY", 2, 3, 1, 3, 65.0),
    Sketcher.Constraint("DistanceY", 9, 3, 0, 3, 15.0),
    Sketcher.Constraint("DistanceX", 9, 3, -1, 1, 72.5),
])
pocket16 = body.newObject("PartDesign::Pocket", "Pocket015")
pocket16.Profile = sketch18
pocket16.Length = 141.809268

sketch19 = body.newObject("Sketcher::SketchObject", "Sketch018")
sketch19.AttachmentSupport = (doc.getObject("XZ_Plane"), [""])
sketch19.MapMode = "FlatFace"
sketch19.AttachmentOffset = App.Placement(V(0, 0, -4), App.Rotation())
sketch19.addGeometry([
    Part.Circle(V(-112, -54.5, 0), V(0, 0, 1), 2.5),
    Part.Circle(V(-112, 54.5, 0), V(0, 0, 1), 2.5),
    Part.Circle(V(112, 54.5, 0), V(0, 0, 1), 2.5),
    Part.Circle(V(112, -54.5, 0), V(0, 0, 1), 2.5),
], False)
sketch19.addConstraint([
    Sketcher.Constraint("Equal", 0, 1),
    Sketcher.Constraint("Equal", 1, 2),
    Sketcher.Constraint("Equal", 2, 3),
    Sketcher.Constraint("Symmetric", 0, 3, 2, 3, -1, 1),
    Sketcher.Constraint("Symmetric", 1, 3, 3, 3, -1, 1),
    Sketcher.Constraint("Symmetric", 1, 3, 2, 3, -2),
    Sketcher.Constraint("Diameter", 0, 5.0),
    Sketcher.Constraint("DistanceX", 0, 3, -1, 1, 112.0),
    Sketcher.Constraint("DistanceY", 0, 3, 1, 3, 109.0),
])
doc.recompute()
hole = body.newObject("PartDesign::Hole", "Hole")
hole.Profile = sketch19
hole.ThreadType = "None"
hole.Diameter = 5
hole.DepthType = "ThroughAll"
hole.HoleCutType = "Countersink"
hole.HoleCutDiameter = 5.05
hole.HoleCutCountersinkAngle = 90
hole.Reversed = True

sketch20 = body.newObject("Sketcher::SketchObject", "Sketch019")
sketch20.AttachmentSupport = (doc.getObject("XZ_Plane"), [""])
sketch20.MapMode = "FlatFace"
sketch20.AttachmentOffset = App.Placement(V(0, 0, -4), App.Rotation())
sketch20.addGeometry([
    Part.Circle(V(-95.2, -54.5, 0), V(0, 0, 1), 2.5),
    Part.Circle(V(-41.4, -54.5, 0), V(0, 0, 1), 2.5),
    Part.Circle(V(-19.7, -54.5, 0), V(0, 0, 1), 2.5),
    Part.Circle(V(-19.7, -18, 0), V(0, 0, 1), 2.5),
    Part.Circle(V(-112, -18, 0), V(0, 0, 1), 2.5),
    Part.Circle(V(-112, 18, 0), V(0, 0, 1), 2.5),
    Part.Circle(V(-95.2, 54.5, 0), V(0, 0, 1), 2.5),
    Part.Circle(V(-41.4, 54.5, 0), V(0, 0, 1), 2.5),
    Part.Circle(V(-19.7, 54.5, 0), V(0, 0, 1), 2.5),
    Part.Circle(V(-19.7, 18, 0), V(0, 0, 1), 2.5),
    Part.Circle(V(16.9, -18, 0), V(0, 0, 1), 2.5),
    Part.Circle(V(16.9, 18, 0), V(0, 0, 1), 2.5),
    Part.Circle(V(16.9, -54.5, 0), V(0, 0, 1), 2.5),
    Part.Circle(V(38.6, -54.5, 0), V(0, 0, 1), 2.5),
    Part.Circle(V(92.4, -54.5, 0), V(0, 0, 1), 2.5),
    Part.Circle(V(109.2, -18, 0), V(0, 0, 1), 2.5),
    Part.Circle(V(109.2, 18, 0), V(0, 0, 1), 2.5),
    Part.Circle(V(92.4, 54.5, 0), V(0, 0, 1), 2.5),
    Part.Circle(V(38.6, 54.5, 0), V(0, 0, 1), 2.5),
    Part.Circle(V(16.9, 54.5, 0), V(0, 0, 1), 2.5),
], False)
sketch20.addConstraint([
    Sketcher.Constraint("Equal", 0, 1),
    Sketcher.Constraint("Equal", 1, 2),
    Sketcher.Constraint("Equal", 2, 3),
    Sketcher.Constraint("Equal", 3, 4),
    Sketcher.Constraint("Equal", 4, 5),
    Sketcher.Constraint("Equal", 5, 6),
    Sketcher.Constraint("Equal", 6, 7),
    Sketcher.Constraint("Equal", 7, 8),
    Sketcher.Constraint("Equal", 8, 9),
    Sketcher.Constraint("Equal", 9, 10),
    Sketcher.Constraint("Equal", 10, 11),
    Sketcher.Constraint("Equal", 11, 12),
    Sketcher.Constraint("Equal", 12, 13),
    Sketcher.Constraint("Equal", 13, 14),
    Sketcher.Constraint("Equal", 14, 15),
    Sketcher.Constraint("Equal", 15, 16),
    Sketcher.Constraint("Equal", 16, 17),
    Sketcher.Constraint("Equal", 17, 18),
    Sketcher.Constraint("Equal", 18, 19),
    Sketcher.Constraint("Symmetric", 4, 3, 5, 3, -1),
    Sketcher.Constraint("Symmetric", 0, 3, 6, 3, -1),
    Sketcher.Constraint("Symmetric", 1, 3, 7, 3, -1),
    Sketcher.Constraint("Symmetric", 2, 3, 8, 3, -1),
    Sketcher.Constraint("Symmetric", 3, 3, 9, 3, -1),
    Sketcher.Constraint("Symmetric", 10, 3, 11, 3, -1),
    Sketcher.Constraint("Symmetric", 15, 3, 16, 3, -1),
    Sketcher.Constraint("Symmetric", 14, 3, 17, 3, -1),
    Sketcher.Constraint("Symmetric", 13, 3, 18, 3, -1),
    Sketcher.Constraint("Symmetric", 12, 3, 19, 3, -1),
    Sketcher.Constraint("Horizontal", 0, 3, 1, 3),
    Sketcher.Constraint("Horizontal", 1, 3, 2, 3),
    Sketcher.Constraint("Horizontal", 3, 3, 4, 3),
    Sketcher.Constraint("Horizontal", 4, 3, 10, 3),
    Sketcher.Constraint("Horizontal", 2, 3, 12, 3),
    Sketcher.Constraint("Horizontal", 12, 3, 13, 3),
    Sketcher.Constraint("Horizontal", 13, 3, 14, 3),
    Sketcher.Constraint("Horizontal", 10, 3, 15, 3),
    Sketcher.Constraint("Vertical", 2, 3, 3, 3),
    Sketcher.Constraint("Vertical", 11, 3, 12, 3),
    Sketcher.Constraint("Diameter", 0, 5.0),
    Sketcher.Constraint("DistanceX", 4, 3, -1, 1, 112.0),
    Sketcher.Constraint("DistanceY", 0, 3, 6, 3, 109.0),
    Sketcher.Constraint("DistanceX", 2, 3, -1, 1, 19.681072),
    Sketcher.Constraint("DistanceY", 3, 3, -1, 1, 17.97388),
    Sketcher.Constraint("DistanceX", -1, 1, 10, 3, 16.86949),
    Sketcher.Constraint("DistanceX", -1, 1, 14, 3, 92.380542),
    Sketcher.Constraint("DistanceX", -1, 1, 15, 3, 109.188418),
    Sketcher.Constraint("DistanceX", 0, 3, 2, 3, 75.511051),
    Sketcher.Constraint("DistanceX", 1, 3, -1, 1, 41.370416),
    Sketcher.Constraint("DistanceX", -1, 1, 13, 3, 38.558835),
])
doc.recompute()
hole2 = body.newObject("PartDesign::Hole", "Hole001")
hole2.Profile = sketch20
hole2.ThreadType = "None"
hole2.Diameter = 5
hole2.DepthType = "ThroughAll"
hole2.HoleCutType = "Countersink"
hole2.HoleCutDiameter = 5.05
hole2.HoleCutCountersinkAngle = 90
hole2.Reversed = True

sketch21 = body.newObject("Sketcher::SketchObject", "Sketch020")
sketch21.AttachmentSupport = (doc.getObject("XZ_Plane"), [""])
sketch21.MapMode = "FlatFace"
sketch21.AttachmentOffset = App.Placement(V(0, 0, -4), App.Rotation())
sketch21.addGeometry([
    Part.LineSegment(V(-107, -38, 0), V(-107, -24, 0)),
    Part.LineSegment(V(-107, -24, 0), V(-98, -24, 0)),
    Part.LineSegment(V(-98, -24, 0), V(-98, -38, 0)),
    Part.LineSegment(V(-98, -38, 0), V(-107, -38, 0)),
    Part.LineSegment(V(-107, 24, 0), V(-107, 38, 0)),
    Part.LineSegment(V(-107, 38, 0), V(-98, 38, 0)),
    Part.LineSegment(V(-98, 38, 0), V(-98, 24, 0)),
    Part.LineSegment(V(-98, 24, 0), V(-107, 24, 0)),
    Part.LineSegment(V(95, 24, 0), V(95, 38, 0)),
    Part.LineSegment(V(95, 38, 0), V(104, 38, 0)),
    Part.LineSegment(V(104, 38, 0), V(104, 24, 0)),
    Part.LineSegment(V(104, 24, 0), V(95, 24, 0)),
    Part.LineSegment(V(95, -38, 0), V(95, -24, 0)),
    Part.LineSegment(V(95, -24, 0), V(104, -24, 0)),
    Part.LineSegment(V(104, -24, 0), V(104, -38, 0)),
    Part.LineSegment(V(104, -38, 0), V(95, -38, 0)),
], False)
sketch21.addConstraint([
    Sketcher.Constraint("Coincident", 0, 2, 1, 1),
    Sketcher.Constraint("Coincident", 1, 2, 2, 1),
    Sketcher.Constraint("Coincident", 2, 2, 3, 1),
    Sketcher.Constraint("Coincident", 3, 2, 0, 1),
    Sketcher.Constraint("Coincident", 4, 2, 5, 1),
    Sketcher.Constraint("Coincident", 5, 2, 6, 1),
    Sketcher.Constraint("Coincident", 6, 2, 7, 1),
    Sketcher.Constraint("Coincident", 7, 2, 4, 1),
    Sketcher.Constraint("Coincident", 8, 2, 9, 1),
    Sketcher.Constraint("Coincident", 9, 2, 10, 1),
    Sketcher.Constraint("Coincident", 10, 2, 11, 1),
    Sketcher.Constraint("Coincident", 11, 2, 8, 1),
    Sketcher.Constraint("Coincident", 12, 2, 13, 1),
    Sketcher.Constraint("Coincident", 13, 2, 14, 1),
    Sketcher.Constraint("Coincident", 14, 2, 15, 1),
    Sketcher.Constraint("Coincident", 15, 2, 12, 1),
    Sketcher.Constraint("Vertical", 0),
    Sketcher.Constraint("Horizontal", 1),
    Sketcher.Constraint("Vertical", 2),
    Sketcher.Constraint("Horizontal", 3),
    Sketcher.Constraint("Vertical", 4),
    Sketcher.Constraint("Horizontal", 5),
    Sketcher.Constraint("Vertical", 6),
    Sketcher.Constraint("Horizontal", 7),
    Sketcher.Constraint("Vertical", 8),
    Sketcher.Constraint("Horizontal", 9),
    Sketcher.Constraint("Vertical", 10),
    Sketcher.Constraint("Horizontal", 11),
    Sketcher.Constraint("Vertical", 12),
    Sketcher.Constraint("Horizontal", 13),
    Sketcher.Constraint("Vertical", 14),
    Sketcher.Constraint("Horizontal", 15),
    Sketcher.Constraint("Symmetric", 3, 2, 4, 2, -1),
    Sketcher.Constraint("Symmetric", 1, 2, 6, 2, -1),
    Sketcher.Constraint("Symmetric", 11, 2, 12, 2, -1),
    Sketcher.Constraint("Symmetric", 9, 2, 14, 2, -1),
    Sketcher.Constraint("Horizontal", 5, 2, 8, 2),
    Sketcher.Constraint("Horizontal", 7, 2, 10, 2),
    Sketcher.Constraint("Equal", 7, 9),
    Sketcher.Constraint("DistanceX", 1, 1, 1, 2, 9.130019),
    Sketcher.Constraint("DistanceY", 0, 1, 0, 2, 14.776214),
    Sketcher.Constraint("DistanceX", 1, 2, -1, 1, 97.725208),
    Sketcher.Constraint("DistanceY", 2, 2, -1, 1, 38.329511),
    Sketcher.Constraint("DistanceX", -1, 1, 8, 2, 94.913627),
])
pocket17 = body.newObject("PartDesign::Pocket", "Pocket016")
pocket17.Profile = sketch21
pocket17.Length = 10
pocket17.Reversed = True

sketch22 = body.newObject("Sketcher::SketchObject", "Sketch021")
sketch22.AttachmentSupport = (doc.getObject("XZ_Plane"), [""])
sketch22.MapMode = "FlatFace"
sketch22.AttachmentOffset = App.Placement(V(0, 0, -4), App.Rotation())
sketch22.addGeometry([
    Part.Circle(V(-103, 0, 0), V(0, 0, 1), 5),
    Part.Circle(V(100, 0, 0), V(0, 0, 1), 5),
], False)
sketch22.addConstraint([
    Sketcher.Constraint("Equal", 0, 1),
    Sketcher.Constraint("PointOnObject", 0, 3, -1),
    Sketcher.Constraint("PointOnObject", 1, 3, -1),
    Sketcher.Constraint("Diameter", 0, 10.0),
    Sketcher.Constraint("DistanceX", 0, 3, 1, 3, 202.665149),
    Sketcher.Constraint("DistanceX", 0, 3, -1, 1, 102.738365),
])
pocket18 = body.newObject("PartDesign::Pocket", "Pocket017")
pocket18.Profile = sketch22
pocket18.Length = 10
pocket18.Reversed = True

doc.recompute()
